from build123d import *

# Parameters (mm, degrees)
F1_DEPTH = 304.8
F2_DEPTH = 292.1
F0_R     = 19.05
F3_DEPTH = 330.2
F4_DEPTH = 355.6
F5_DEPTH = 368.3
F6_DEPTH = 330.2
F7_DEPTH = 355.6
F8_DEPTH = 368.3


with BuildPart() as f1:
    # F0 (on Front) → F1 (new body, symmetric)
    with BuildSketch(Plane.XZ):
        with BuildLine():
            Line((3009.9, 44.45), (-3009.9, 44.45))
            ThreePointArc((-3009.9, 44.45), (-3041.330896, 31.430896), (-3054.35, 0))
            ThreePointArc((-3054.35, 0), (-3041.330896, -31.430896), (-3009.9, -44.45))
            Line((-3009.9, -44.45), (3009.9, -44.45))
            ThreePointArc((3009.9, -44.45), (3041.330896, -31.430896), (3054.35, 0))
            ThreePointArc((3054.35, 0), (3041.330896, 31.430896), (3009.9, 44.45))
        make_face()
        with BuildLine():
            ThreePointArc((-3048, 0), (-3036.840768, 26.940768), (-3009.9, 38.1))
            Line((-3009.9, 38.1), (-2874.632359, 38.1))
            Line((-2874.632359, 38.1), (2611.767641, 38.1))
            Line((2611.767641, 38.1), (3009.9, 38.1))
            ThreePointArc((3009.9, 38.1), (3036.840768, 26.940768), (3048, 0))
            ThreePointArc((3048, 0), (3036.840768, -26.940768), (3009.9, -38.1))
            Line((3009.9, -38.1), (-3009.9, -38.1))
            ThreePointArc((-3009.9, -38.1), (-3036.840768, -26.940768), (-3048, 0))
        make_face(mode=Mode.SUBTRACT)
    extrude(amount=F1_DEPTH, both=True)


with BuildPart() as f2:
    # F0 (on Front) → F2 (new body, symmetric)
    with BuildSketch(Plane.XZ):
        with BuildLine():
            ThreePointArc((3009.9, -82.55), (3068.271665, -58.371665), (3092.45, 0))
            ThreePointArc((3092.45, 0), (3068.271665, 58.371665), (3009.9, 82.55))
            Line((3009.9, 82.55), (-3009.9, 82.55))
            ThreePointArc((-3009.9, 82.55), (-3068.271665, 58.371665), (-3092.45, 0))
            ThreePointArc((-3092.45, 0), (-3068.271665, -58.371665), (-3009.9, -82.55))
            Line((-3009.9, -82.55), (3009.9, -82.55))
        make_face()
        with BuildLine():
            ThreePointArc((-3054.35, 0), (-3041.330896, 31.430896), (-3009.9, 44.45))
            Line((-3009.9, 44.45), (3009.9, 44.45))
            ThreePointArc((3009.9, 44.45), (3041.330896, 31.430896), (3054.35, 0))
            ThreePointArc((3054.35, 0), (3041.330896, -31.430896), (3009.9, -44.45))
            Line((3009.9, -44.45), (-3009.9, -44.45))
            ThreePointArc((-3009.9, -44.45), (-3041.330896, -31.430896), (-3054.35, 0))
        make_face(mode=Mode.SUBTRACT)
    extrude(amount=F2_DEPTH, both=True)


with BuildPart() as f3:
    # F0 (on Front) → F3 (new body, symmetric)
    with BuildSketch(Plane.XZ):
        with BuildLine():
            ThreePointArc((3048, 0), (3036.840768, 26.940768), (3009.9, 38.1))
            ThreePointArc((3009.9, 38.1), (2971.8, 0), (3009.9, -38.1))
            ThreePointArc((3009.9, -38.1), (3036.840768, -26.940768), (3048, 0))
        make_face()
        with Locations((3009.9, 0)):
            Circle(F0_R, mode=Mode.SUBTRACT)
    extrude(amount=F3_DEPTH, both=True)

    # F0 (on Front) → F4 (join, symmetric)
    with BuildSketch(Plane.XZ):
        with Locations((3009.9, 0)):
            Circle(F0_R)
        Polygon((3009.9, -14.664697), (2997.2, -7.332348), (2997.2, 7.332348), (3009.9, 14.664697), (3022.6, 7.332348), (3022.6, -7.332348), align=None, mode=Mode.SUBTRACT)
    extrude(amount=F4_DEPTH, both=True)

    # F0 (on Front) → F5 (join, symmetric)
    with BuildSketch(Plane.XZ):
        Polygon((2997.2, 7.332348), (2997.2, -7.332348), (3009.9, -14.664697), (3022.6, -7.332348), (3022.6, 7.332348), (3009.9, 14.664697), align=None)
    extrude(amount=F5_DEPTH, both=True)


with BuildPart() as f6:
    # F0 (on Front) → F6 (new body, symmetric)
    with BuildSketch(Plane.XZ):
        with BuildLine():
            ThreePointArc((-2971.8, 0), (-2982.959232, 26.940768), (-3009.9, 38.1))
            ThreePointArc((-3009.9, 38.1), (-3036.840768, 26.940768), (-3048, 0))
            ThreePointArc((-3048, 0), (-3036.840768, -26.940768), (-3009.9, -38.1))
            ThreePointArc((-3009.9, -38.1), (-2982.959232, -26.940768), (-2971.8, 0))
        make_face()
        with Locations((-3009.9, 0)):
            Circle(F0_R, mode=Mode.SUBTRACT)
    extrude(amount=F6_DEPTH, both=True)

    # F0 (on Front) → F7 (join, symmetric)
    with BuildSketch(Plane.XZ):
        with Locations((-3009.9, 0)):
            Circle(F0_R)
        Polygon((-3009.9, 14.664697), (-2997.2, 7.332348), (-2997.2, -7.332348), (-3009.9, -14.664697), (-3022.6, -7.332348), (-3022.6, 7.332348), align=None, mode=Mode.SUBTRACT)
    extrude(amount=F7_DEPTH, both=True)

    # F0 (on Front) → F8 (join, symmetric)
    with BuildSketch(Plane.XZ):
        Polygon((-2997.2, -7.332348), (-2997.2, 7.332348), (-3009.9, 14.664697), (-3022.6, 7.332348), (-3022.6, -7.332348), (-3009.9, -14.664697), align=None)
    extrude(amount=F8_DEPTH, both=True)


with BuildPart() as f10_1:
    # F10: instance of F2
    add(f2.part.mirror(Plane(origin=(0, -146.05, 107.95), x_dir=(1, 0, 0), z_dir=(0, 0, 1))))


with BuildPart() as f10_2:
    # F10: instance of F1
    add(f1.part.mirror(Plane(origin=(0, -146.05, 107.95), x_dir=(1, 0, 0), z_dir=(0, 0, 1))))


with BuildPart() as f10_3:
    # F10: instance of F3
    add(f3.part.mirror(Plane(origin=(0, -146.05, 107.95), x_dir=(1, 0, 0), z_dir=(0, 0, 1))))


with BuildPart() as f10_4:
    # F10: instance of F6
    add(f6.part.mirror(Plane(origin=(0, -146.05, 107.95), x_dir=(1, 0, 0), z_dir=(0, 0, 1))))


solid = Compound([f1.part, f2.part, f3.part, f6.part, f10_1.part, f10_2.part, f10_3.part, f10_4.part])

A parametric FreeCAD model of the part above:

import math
import FreeCAD as App
import Part
import Sketcher
from FreeCAD import Vector
Q = App.Units.Quantity

doc = App.newDocument("Part")
body = doc.addObject("PartDesign::Body", "Body")

# Sketch on XZ plane
sketch1 = body.newObject("Sketcher::SketchObject", "Sketch")
sketch1.AttachmentSupport = (doc.getObject("XZ_Plane"), [""])
sketch1.MapMode = "FlatFace"
sketch1.addGeometry([
    Part.LineSegment(Vector(3010, 44, 0), Vector(-3010, 44, 0)),  # 0
    Part.ArcOfCircle(Part.Circle(Vector(-3010, 0, 0), Vector(0, 0, 1), 44), math.radians(90), math.radians(180)),  # 1
    Part.ArcOfCircle(Part.Circle(Vector(-3010, 0, 0), Vector(0, 0, 1), 44), math.radians(-180), math.radians(-90)),  # 2
    Part.LineSegment(Vector(-3010, -44, 0), Vector(3010, -44, 0)),  # 3
    Part.ArcOfCircle(Part.Circle(Vector(3010, 0, 0), Vector(0, 0, 1), 44), math.radians(-90), math.radians(0)),  # 4
    Part.ArcOfCircle(Part.Circle(Vector(3010, 0, 0), Vector(0, 0, 1), 44), math.radians(0), math.radians(90)),  # 5
    Part.ArcOfCircle(Part.Circle(Vector(-3010, 0, 0), Vector(0, 0, 1), 38), math.radians(-180), math.radians(-90)),  # 6
    Part.ArcOfCircle(Part.Circle(Vector(-3010, 0, 0), Vector(0, 0, 1), 38), math.radians(90), math.radians(180)),  # 7
    Part.LineSegment(Vector(-3010, 38, 0), Vector(3010, 38, 0)),  # 8
    Part.ArcOfCircle(Part.Circle(Vector(3010, 0, 0), Vector(0, 0, 1), 38), math.radians(0), math.radians(90)),  # 9
    Part.ArcOfCircle(Part.Circle(Vector(3010, 0, 0), Vector(0, 0, 1), 38), math.radians(-90), math.radians(0)),  # 10
    Part.LineSegment(Vector(3010, -38, 0), Vector(-3010, -38, 0)),  # 11
], False)
sketch1.addConstraint([
    Sketcher.Constraint("Tangent", 0, 2, 1, 1),
    Sketcher.Constraint("Tangent", 1, 2, 2, 1),
    Sketcher.Constraint("Tangent", 2, 2, 3, 1),
    Sketcher.Constraint("Tangent", 3, 2, 4, 1),
    Sketcher.Constraint("Tangent", 4, 2, 5, 1),
    Sketcher.Constraint("Tangent", 5, 2, 0, 1),
    Sketcher.Constraint("Tangent", 6, 1, 7, 2),
    Sketcher.Constraint("Tangent", 7, 1, 8, 1),
    Sketcher.Constraint("Tangent", 8, 2, 9, 2),
    Sketcher.Constraint("Tangent", 9, 1, 10, 2),
    Sketcher.Constraint("Tangent", 10, 1, 11, 1),
    Sketcher.Constraint("Tangent", 11, 2, 6, 2),
    Sketcher.Constraint("Horizontal", 0),
    Sketcher.Constraint("Horizontal", 3),
    Sketcher.Constraint("Horizontal", 8),
    Sketcher.Constraint("Horizontal", 11),
    Sketcher.Constraint("Coincident", 6, 3, 1, 3),
    Sketcher.Constraint("Coincident", 9, 3, 4, 3),
    Sketcher.Constraint("Equal", 1, 2),
    Sketcher.Constraint("Equal", 2, 4),
    Sketcher.Constraint("Equal", 6, 7),
    Sketcher.Constraint("Symmetric", 1, 3, 4, 3, -1, 1),
    Sketcher.Constraint("PointOnObject", 1, 2, -1),
    Sketcher.Constraint("PointOnObject", 4, 2, -1),
    Sketcher.Constraint("PointOnObject", 6, 1, -1),
    Sketcher.Constraint("PointOnObject", 9, 1, -1),
    Sketcher.Constraint("Radius", 6, Q("1.5 in")),
    Sketcher.Constraint("DistanceX", 0, 2, 0, 1, Q("237 in")),
    Sketcher.Constraint("Radius", 1, Q("1.7500001 in")),
])
pad1 = body.newObject("PartDesign::Pad", "Pad")
pad1.Profile = sketch1
pad1.Length = Q("24 in")
pad1.Midplane = True
body2 = doc.addObject("PartDesign::Body", "Body001")

# Sketch on XZ plane
sketch2 = body2.newObject("Sketcher::SketchObject", "Sketch001")
sketch2.AttachmentSupport = (doc.getObject("XZ_Plane001"), [""])
sketch2.MapMode = "FlatFace"
sketch2.addGeometry([
    Part.ArcOfCircle(Part.Circle(Vector(3010, 0, 0), Vector(0, 0, 1), 83), math.radians(-90), math.radians(0)),  # 0
    Part.ArcOfCircle(Part.Circle(Vector(3010, 0, 0), Vector(0, 0, 1), 83), math.radians(0), math.radians(90)),  # 1
    Part.LineSegment(Vector(3010, 83, 0), Vector(-3010, 83, 0)),  # 2
    Part.ArcOfCircle(Part.Circle(Vector(-3010, 0, 0), Vector(0, 0, 1), 83), math.radians(90), math.radians(180)),  # 3
    Part.ArcOfCircle(Part.Circle(Vector(-3010, 0, 0), Vector(0, 0, 1), 83), math.radians(180), math.radians(270)),  # 4
    Part.LineSegment(Vector(-3010, -83, 0), Vector(3010, -83, 0)),  # 5
    Part.ArcOfCircle(Part.Circle(Vector(-3010, 0, 0), Vector(0, 0, 1), 44), math.radians(-180), math.radians(-90)),  # 6
    Part.ArcOfCircle(Part.Circle(Vector(-3010, 0, 0), Vector(0, 0, 1), 44), math.radians(90), math.radians(180)),  # 7
    Part.LineSegment(Vector(-3010, 44, 0), Vector(3010, 44, 0)),  # 8
    Part.ArcOfCircle(Part.Circle(Vector(3010, 0, 0), Vector(0, 0, 1), 44), math.radians(0), math.radians(90)),  # 9
    Part.ArcOfCircle(Part.Circle(Vector(3010, 0, 0), Vector(0, 0, 1), 44), math.radians(-90), math.radians(0)),  # 10
    Part.LineSegment(Vector(3010, -44, 0), Vector(-3010, -44, 0)),  # 11
], False)
sketch2.addConstraint([
    Sketcher.Constraint("Tangent", 0, 2, 1, 1),
    Sketcher.Constraint("Tangent", 1, 2, 2, 1),
    Sketcher.Constraint("Tangent", 2, 2, 3, 1),
    Sketcher.Constraint("Tangent", 3, 2, 4, 1),
    Sketcher.Constraint("Tangent", 4, 2, 5, 1),
    Sketcher.Constraint("Tangent", 5, 2, 0, 1),
    Sketcher.Constraint("Tangent", 6, 1, 7, 2),
    Sketcher.Constraint("Tangent", 7, 1, 8, 1),
    Sketcher.Constraint("Tangent", 8, 2, 9, 2),
    Sketcher.Constraint("Tangent", 9, 1, 10, 2),
    Sketcher.Constraint("Tangent", 10, 1, 11, 1),
    Sketcher.Constraint("Tangent", 11, 2, 6, 2),
    Sketcher.Constraint("Horizontal", 2),
    Sketcher.Constraint("Horizontal", 5),
    Sketcher.Constraint("Horizontal", 8),
    Sketcher.Constraint("Horizontal", 11),
    Sketcher.Constraint("Coincident", 6, 3, 3, 3),
    Sketcher.Constraint("Coincident", 9, 3, 0, 3),
    Sketcher.Constraint("Equal", 0, 1),
    Sketcher.Constraint("Equal", 1, 3),
    Sketcher.Constraint("Equal", 6, 7),
    Sketcher.Constraint("Symmetric", 0, 3, 3, 3, -1, 1),
    Sketcher.Constraint("PointOnObject", 0, 2, -1),
    Sketcher.Constraint("PointOnObject", 3, 2, -1),
    Sketcher.Constraint("PointOnObject", 6, 1, -1),
    Sketcher.Constraint("PointOnObject", 9, 1, -1),
    Sketcher.Constraint("DistanceX", 2, 2, 2, 1, Q("237 in")),
    Sketcher.Constraint("Radius", 0, Q("3.25 in")),
    Sketcher.Constraint("Radius", 6, Q("1.7500001 in")),
])
pad2 = body2.newObject("PartDesign::Pad", "Pad001")
pad2.Profile = sketch2
pad2.Length = Q("23 in")
pad2.Midplane = True
body3 = doc.addObject("PartDesign::Body", "Body002")

# Sketch on XZ plane
sketch3 = body3.newObject("Sketcher::SketchObject", "Sketch002")
sketch3.AttachmentSupport = (doc.getObject("XZ_Plane002"), [""])
sketch3.MapMode = "FlatFace"
sketch3.addGeometry([
    Part.ArcOfCircle(Part.Circle(Vector(3010, 0, 0), Vector(0, 0, 1), 38), math.radians(0), math.radians(90)),
    Part.ArcOfCircle(Part.Circle(Vector(3010, 0, 0), Vector(0, 0, 1), 38), math.radians(90), math.radians(270)),
    Part.ArcOfCircle(Part.Circle(Vector(3010, 0, 0), Vector(0, 0, 1), 38), math.radians(-90), math.radians(0)),
    Part.Circle(Vector(3010, 0, 0), Vector(0, 0, 1), 19),
], False)
sketch3.addConstraint([
    Sketcher.Constraint("Tangent", 0, 2, 1, 1),
    Sketcher.Constraint("Tangent", 1, 2, 2, 1),
    Sketcher.Constraint("Tangent", 2, 2, 0, 1),
    Sketcher.Constraint("Coincident", 3, 3, 0, 3),
    Sketcher.Constraint("Symmetric", 0, 2, 1, 2, -1),
    Sketcher.Constraint("PointOnObject", 2, 2, -1),
    Sketcher.Constraint("Vertical", 3, 3, 0, 2),
    Sketcher.Constraint("Diameter", 3, Q("1.5 in")),
    Sketcher.Constraint("Radius", 0, Q("1.5 in")),
    Sketcher.Constraint("DistanceX", -1, 1, 2, 2, Q("120 in")),
])
pad3 = body3.newObject("PartDesign::Pad", "Pad002")
pad3.Profile = sketch3
pad3.Length = Q("26 in")
pad3.Midplane = True

# Sketch on XZ plane
sketch4 = body3.newObject("Sketcher::SketchObject", "Sketch003")
sketch4.AttachmentSupport = (doc.getObject("XZ_Plane002"), [""])
sketch4.MapMode = "FlatFace"
sketch4.addGeometry([
    Part.Circle(Vector(3010, 0, 0), Vector(0, 0, 1), 19),  # 0
    Part.LineSegment(Vector(3023, -7, 0), Vector(3010, -15, 0)),  # 1
    Part.LineSegment(Vector(3010, -15, 0), Vector(2997, -7, 0)),  # 2
    Part.LineSegment(Vector(2997, -7, 0), Vector(2997, 7, 0)),  # 3
    Part.LineSegment(Vector(2997, 7, 0), Vector(3010, 15, 0)),  # 4
    Part.LineSegment(Vector(3010, 15, 0), Vector(3023, 7, 0)),  # 5
    Part.LineSegment(Vector(3023, 7, 0), Vector(3023, -7, 0)),  # 6
], False)
sketch4.addConstraint([
    Sketcher.Constraint("Coincident", 1, 2, 2, 1),
    Sketcher.Constraint("Coincident", 2, 2, 3, 1),
    Sketcher.Constraint("Coincident", 3, 2, 4, 1),
    Sketcher.Constraint("Coincident", 4, 2, 5, 1),
    Sketcher.Constraint("Coincident", 5, 2, 6, 1),
    Sketcher.Constraint("Coincident", 6, 2, 1, 1),
    Sketcher.Constraint("Vertical", 3),
    Sketcher.Constraint("Vertical", 6),
    Sketcher.Constraint("Symmetric", 1, 2, 4, 2, -1),
    Sketcher.Constraint("PointOnObject", 0, 3, -1),
    Sketcher.Constraint("Parallel", 1, 4),
    Sketcher.Constraint("Parallel", 2, 5),
    Sketcher.Constraint("Horizontal", 3, 2, 5, 2),
    Sketcher.Constraint("Horizontal", 2, 2, 6, 2),
    Sketcher.Constraint("Vertical", 0, 3, 1, 2),
    Sketcher.Constraint("Diameter", 0, Q("1.5 in")),
    Sketcher.Constraint("DistanceX", -1, 1, 2, 2, Q("118 in")),
    Sketcher.Constraint("DistanceX", -1, 1, 5, 2, Q("119 in")),
    Sketcher.Constraint("Angle", 1, Q("-149.999998 deg")),
    Sketcher.Constraint("DistanceY", 3, 1, 3, 2, Q("14.664696 mm")),
])
pad4 = body3.newObject("PartDesign::Pad", "Pad003")
pad4.Profile = sketch4
pad4.Length = Q("28 in")
pad4.Midplane = True

# Sketch on XZ plane
sketch5 = body3.newObject("Sketcher::SketchObject", "Sketch004")
sketch5.AttachmentSupport = (doc.getObject("XZ_Plane002"), [""])
sketch5.MapMode = "FlatFace"
sketch5.addGeometry([
    Part.LineSegment(Vector(2997, 7, 0), Vector(2997, -7, 0)),  # 0
    Part.LineSegment(Vector(2997, -7, 0), Vector(3010, -15, 0)),  # 1
    Part.LineSegment(Vector(3010, -15, 0), Vector(3023, -7, 0)),  # 2
    Part.LineSegment(Vector(3023, -7, 0), Vector(3023, 7, 0)),  # 3
    Part.LineSegment(Vector(3023, 7, 0), Vector(3010, 15, 0)),  # 4
    Part.LineSegment(Vector(3010, 15, 0), Vector(2997, 7, 0)),  # 5
], False)
sketch5.addConstraint([
    Sketcher.Constraint("Coincident", 0, 2, 1, 1),
    Sketcher.Constraint("Coincident", 1, 2, 2, 1),
    Sketcher.Constraint("Coincident", 2, 2, 3, 1),
    Sketcher.Constraint("Coincident", 3, 2, 4, 1),
    Sketcher.Constraint("Coincident", 4, 2, 5, 1),
    Sketcher.Constraint("Coincident", 5, 2, 0, 1),
    Sketcher.Constraint("Vertical", 0),
    Sketcher.Constraint("Vertical", 3),
    Sketcher.Constraint("Symmetric", 1, 2, 4, 2, -1),
    Sketcher.Constraint("Parallel", 1, 4),
    Sketcher.Constraint("Parallel", 2, 5),
    Sketcher.Constraint("Horizontal", 0, 2, 2, 2),
    Sketcher.Constraint("Horizontal", 3, 2, 5, 2),
    Sketcher.Constraint("DistanceX", -1, 1, 0, 2, Q("118 in")),
    Sketcher.Constraint("DistanceX", -1, 1, 2, 2, Q("119 in")),
    Sketcher.Constraint("Angle", 1, Q("-30.000002 deg")),
    Sketcher.Constraint("DistanceY", 0, 2, 0, 1, Q("14.664696 mm")),
])
pad5 = body3.newObject("PartDesign::Pad", "Pad004")
pad5.Profile = sketch5
pad5.Length = Q("29 in")
pad5.Midplane = True
body4 = doc.addObject("PartDesign::Body", "Body003")

# Sketch on XZ plane
sketch6 = body4.newObject("Sketcher::SketchObject", "Sketch005")
sketch6.AttachmentSupport = (doc.getObject("XZ_Plane003"), [""])
sketch6.MapMode = "FlatFace"
sketch6.addGeometry([
    Part.ArcOfCircle(Part.Circle(Vector(-3010, 0, 0), Vector(0, 0, 1), 38), math.radians(0), math.radians(90)),  # 0
    Part.ArcOfCircle(Part.Circle(Vector(-3010, 0, 0), Vector(0, 0, 1), 38), math.radians(90), math.radians(180)),  # 1
    Part.ArcOfCircle(Part.Circle(Vector(-3010, 0, 0), Vector(0, 0, 1), 38), math.radians(-180), math.radians(-90)),  # 2
    Part.ArcOfCircle(Part.Circle(Vector(-3010, 0, 0), Vector(0, 0, 1), 38), math.radians(-90), math.radians(0)),  # 3
    Part.Circle(Vector(-3010, 0, 0), Vector(0, 0, 1), 19),  # 4
], False)
sketch6.addConstraint([
    Sketcher.Constraint("Tangent", 0, 2, 1, 1),
    Sketcher.Constraint("Tangent", 1, 2, 2, 1),
    Sketcher.Constraint("Tangent", 2, 2, 3, 1),
    Sketcher.Constraint("Tangent", 3, 2, 0, 1),
    Sketcher.Constraint("Coincident", 4, 3, 0, 3),
    Sketcher.Constraint("Equal", 0, 1),
    Sketcher.Constraint("Symmetric", 0, 2, 2, 2, -1),
    Sketcher.Constraint("PointOnObject", 1, 2, -1),
    Sketcher.Constraint("PointOnObject", 3, 2, -1),
    Sketcher.Constraint("Vertical", 4, 3, 0, 2),
    Sketcher.Constraint("Diameter", 4, Q("1.5 in")),
    Sketcher.Constraint("Radius", 0, Q("1.5 in")),
    Sketcher.Constraint("DistanceX", 1, 2, -1, 1, Q("120 in")),
])
pad6 = body4.newObject("PartDesign::Pad", "Pad005")
pad6.Profile = sketch6
pad6.Length = Q("26 in")
pad6.Midplane = True

# Sketch on XZ plane
sketch7 = body4.newObject("Sketcher::SketchObject", "Sketch006")
sketch7.AttachmentSupport = (doc.getObject("XZ_Plane003"), [""])
sketch7.MapMode = "FlatFace"
sketch7.addGeometry([
    Part.Circle(Vector(-3010, 0, 0), Vector(0, 0, 1), 19),  # 0
    Part.LineSegment(Vector(-3023, 7, 0), Vector(-3010, 15, 0)),  # 1
    Part.LineSegment(Vector(-3010, 15, 0), Vector(-2997, 7, 0)),  # 2
    Part.LineSegment(Vector(-2997, 7, 0), Vector(-2997, -7, 0)),  # 3
    Part.LineSegment(Vector(-2997, -7, 0), Vector(-3010, -15, 0)),  # 4
    Part.LineSegment(Vector(-3010, -15, 0), Vector(-3023, -7, 0)),  # 5
    Part.LineSegment(Vector(-3023, -7, 0), Vector(-3023, 7, 0)),  # 6
], False)
sketch7.addConstraint([
    Sketcher.Constraint("Coincident", 1, 2, 2, 1),
    Sketcher.Constraint("Coincident", 2, 2, 3, 1),
    Sketcher.Constraint("Coincident", 3, 2, 4, 1),
    Sketcher.Constraint("Coincident", 4, 2, 5, 1),
    Sketcher.Constraint("Coincident", 5, 2, 6, 1),
    Sketcher.Constraint("Coincident", 6, 2, 1, 1),
    Sketcher.Constraint("Vertical", 3),
    Sketcher.Constraint("Vertical", 6),
    Sketcher.Constraint("Symmetric", 1, 2, 4, 2, -1),
    Sketcher.Constraint("PointOnObject", 0, 3, -1),
    Sketcher.Constraint("Parallel", 1, 4),
    Sketcher.Constraint("Parallel", 2, 5),
    Sketcher.Constraint("Horizontal", 3, 2, 5, 2),
    Sketcher.Constraint("Horizontal", 2, 2, 6, 2),
    Sketcher.Constraint("Vertical", 0, 3, 1, 2),
    Sketcher.Constraint("Diameter", 0, Q("1.5 in")),
    Sketcher.Constraint("DistanceX", 2, 2, -1, 1, Q("118 in")),
    Sketcher.Constraint("DistanceX", 5, 2, -1, 1, Q("119 in")),
    Sketcher.Constraint("Angle", 1, Q("30.000002 deg")),
    Sketcher.Constraint("DistanceY", 3, 2, 3, 1, Q("14.664696 mm")),
])
pad7 = body4.newObject("PartDesign::Pad", "Pad006")
pad7.Profile = sketch7
pad7.Length = Q("28 in")
pad7.Midplane = True

# Sketch on XZ plane
sketch8 = body4.newObject("Sketcher::SketchObject", "Sketch007")
sketch8.AttachmentSupport = (doc.getObject("XZ_Plane003"), [""])
sketch8.MapMode = "FlatFace"
sketch8.addGeometry([
    Part.LineSegment(Vector(-2997, -7, 0), Vector(-2997, 7, 0)),  # 0
    Part.LineSegment(Vector(-2997, 7, 0), Vector(-3010, 15, 0)),  # 1
    Part.LineSegment(Vector(-3010, 15, 0), Vector(-3023, 7, 0)),  # 2
    Part.LineSegment(Vector(-3023, 7, 0), Vector(-3023, -7, 0)),  # 3
    Part.LineSegment(Vector(-3023, -7, 0), Vector(-3010, -15, 0)),  # 4
    Part.LineSegment(Vector(-3010, -15, 0), Vector(-2997, -7, 0)),  # 5
], False)
sketch8.addConstraint([
    Sketcher.Constraint("Coincident", 0, 2, 1, 1),
    Sketcher.Constraint("Coincident", 1, 2, 2, 1),
    Sketcher.Constraint("Coincident", 2, 2, 3, 1),
    Sketcher.Constraint("Coincident", 3, 2, 4, 1),
    Sketcher.Constraint("Coincident", 4, 2, 5, 1),
    Sketcher.Constraint("Coincident", 5, 2, 0, 1),
    Sketcher.Constraint("Vertical", 0),
    Sketcher.Constraint("Vertical", 3),
    Sketcher.Constraint("Symmetric", 1, 2, 4, 2, -1),
    Sketcher.Constraint("Parallel", 1, 4),
    Sketcher.Constraint("Parallel", 2, 5),
    Sketcher.Constraint("Horizontal", 0, 2, 2, 2),
    Sketcher.Constraint("Horizontal", 3, 2, 5, 2),
    Sketcher.Constraint("DistanceX", 0, 2, -1, 1, Q("118 in")),
    Sketcher.Constraint("DistanceX", 2, 2, -1, 1, Q("119 in")),
    Sketcher.Constraint("Angle", 1, Q("149.999998 deg")),
    Sketcher.Constraint("DistanceY", 0, 1, 0, 2, Q("14.664696 mm")),
])
pad8 = body4.newObject("PartDesign::Pad", "Pad007")
pad8.Profile = sketch8
pad8.Length = Q("29 in")
pad8.Midplane = True
body5 = doc.addObject("PartDesign::Body", "Body004")
doc.recompute()

mirroring = doc.addObject("Part::Mirroring", "Mirroring")
mirroring.Source = body2
mirroring.Base = Vector(0, -146.05, 107.95)
mirroring.Normal = Vector(0, 0, 1)
body5.BaseFeature = mirroring
doc.recompute()
body6 = doc.addObject("PartDesign::Body", "Body005")
doc.recompute()

mirroring2 = doc.addObject("Part::Mirroring", "Mirroring001")
mirroring2.Source = body
mirroring2.Base = Vector(0, -146.05, 107.95)
mirroring2.Normal = Vector(0, 0, 1)
body6.BaseFeature = mirroring2
doc.recompute()
body7 = doc.addObject("PartDesign::Body", "Body006")
doc.recompute()

mirroring3 = doc.addObject("Part::Mirroring", "Mirroring002")
mirroring3.Source = body3
mirroring3.Base = Vector(0, -146.05, 107.95)
mirroring3.Normal = Vector(0, 0, 1)
body7.BaseFeature = mirroring3
doc.recompute()
body8 = doc.addObject("PartDesign::Body", "Body007")
doc.recompute()

mirroring4 = doc.addObject("Part::Mirroring", "Mirroring003")
mirroring4.Source = body4
mirroring4.Base = Vector(0, -146.05, 107.95)
mirroring4.Normal = Vector(0, 0, 1)
body8.BaseFeature = mirroring4
doc.recompute()
mirroring.Visibility = False
mirroring2.Visibility = False
mirroring3.Visibility = False
mirroring4.Visibility = False

doc.recompute()
